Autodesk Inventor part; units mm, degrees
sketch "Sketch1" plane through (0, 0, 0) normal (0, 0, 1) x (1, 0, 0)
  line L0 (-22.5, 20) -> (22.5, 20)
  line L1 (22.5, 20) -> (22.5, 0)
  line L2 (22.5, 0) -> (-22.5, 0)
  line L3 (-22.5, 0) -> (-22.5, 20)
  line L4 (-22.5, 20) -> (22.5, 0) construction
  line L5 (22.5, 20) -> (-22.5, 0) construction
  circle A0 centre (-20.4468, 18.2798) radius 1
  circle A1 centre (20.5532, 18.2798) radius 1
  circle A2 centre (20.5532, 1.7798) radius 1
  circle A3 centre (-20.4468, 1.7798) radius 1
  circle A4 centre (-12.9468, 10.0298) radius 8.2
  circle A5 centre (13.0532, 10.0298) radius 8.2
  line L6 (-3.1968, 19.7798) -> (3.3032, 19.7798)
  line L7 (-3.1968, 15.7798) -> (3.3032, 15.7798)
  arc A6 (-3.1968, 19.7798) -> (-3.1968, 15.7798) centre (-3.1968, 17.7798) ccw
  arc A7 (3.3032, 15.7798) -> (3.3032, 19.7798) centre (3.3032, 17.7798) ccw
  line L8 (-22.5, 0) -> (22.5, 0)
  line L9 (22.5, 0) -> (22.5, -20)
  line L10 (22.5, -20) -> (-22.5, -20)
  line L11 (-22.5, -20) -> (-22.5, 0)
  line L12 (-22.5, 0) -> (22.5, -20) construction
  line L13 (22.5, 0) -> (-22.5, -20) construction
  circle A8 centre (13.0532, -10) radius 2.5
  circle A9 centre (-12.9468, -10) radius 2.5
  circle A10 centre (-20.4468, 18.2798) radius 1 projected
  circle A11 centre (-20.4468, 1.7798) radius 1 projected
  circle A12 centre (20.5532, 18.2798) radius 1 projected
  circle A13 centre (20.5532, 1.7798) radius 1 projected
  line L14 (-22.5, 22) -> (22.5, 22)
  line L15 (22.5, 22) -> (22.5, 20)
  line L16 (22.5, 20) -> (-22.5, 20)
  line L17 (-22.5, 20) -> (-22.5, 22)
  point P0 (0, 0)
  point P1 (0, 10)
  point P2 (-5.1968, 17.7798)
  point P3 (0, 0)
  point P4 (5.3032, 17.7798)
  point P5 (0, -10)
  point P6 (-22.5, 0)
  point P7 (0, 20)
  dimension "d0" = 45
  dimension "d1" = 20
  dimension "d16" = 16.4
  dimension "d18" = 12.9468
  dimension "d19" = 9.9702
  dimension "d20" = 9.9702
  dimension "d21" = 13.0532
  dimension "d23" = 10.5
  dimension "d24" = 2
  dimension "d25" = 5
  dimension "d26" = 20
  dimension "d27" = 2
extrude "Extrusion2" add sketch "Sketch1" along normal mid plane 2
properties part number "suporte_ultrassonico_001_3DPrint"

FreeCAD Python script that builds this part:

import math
import FreeCAD as App
import Part
import Sketcher
from FreeCAD import Vector
Q = App.Units.Quantity

doc = App.newDocument("Part")
body = doc.addObject("PartDesign::Body", "Body")

# Sketch on XY plane
sketch1 = body.newObject("Sketcher::SketchObject", "Sketch")
sketch1.AttachmentSupport = (doc.getObject("XY_Plane"), [""])
sketch1.MapMode = "FlatFace"
sketch1.addGeometry(Part.LineSegment(Vector(-22.5, 22, 0), Vector(-22.5, -20, 0)), False)
sketch1.addGeometry(Part.LineSegment(Vector(-22.5, -20, 0), Vector(22.5, -20, 0)), False)
sketch1.addGeometry(Part.LineSegment(Vector(22.5, -20, 0), Vector(22.5, 22, 0)), False)
sketch1.addGeometry(Part.LineSegment(Vector(22.5, 22, 0), Vector(-22.5, 22, 0)), False)
sketch1.addGeometry(Part.Circle(Vector(20.6, 18.3, 0), Vector(0, 0, 1), 1), False)
sketch1.addGeometry(Part.Circle(Vector(-20.4, 1.8, 0), Vector(0, 0, 1), 1), False)
sketch1.addGeometry(Part.Circle(Vector(-12.9, 10, 0), Vector(0, 0, 1), 8.2), False)
sketch1.addGeometry(Part.Circle(Vector(-20.4, 18.3, 0), Vector(0, 0, 1), 1), False)
sketch1.addGeometry(Part.Circle(Vector(20.6, 1.8, 0), Vector(0, 0, 1), 1), False)
sketch1.addGeometry(Part.Circle(Vector(13.1, 10, 0), Vector(0, 0, 1), 8.2), False)
sketch1.addGeometry(Part.ArcOfCircle(Part.Circle(Vector(-3.2, 17.8, 0), Vector(0, 0, 1), 2), math.radians(90), math.radians(270)), False)
sketch1.addGeometry(Part.LineSegment(Vector(-3.2, 19.8, 0), Vector(3.3, 19.8, 0)), False)
sketch1.addGeometry(Part.ArcOfCircle(Part.Circle(Vector(3.3, 17.8, 0), Vector(0, 0, 1), 2), math.radians(-90), math.radians(90)), False)
sketch1.addGeometry(Part.LineSegment(Vector(3.3, 15.8, 0), Vector(-3.2, 15.8, 0)), False)
sketch1.addGeometry(Part.Circle(Vector(13.1, -10, 0), Vector(0, 0, 1), 2.5), False)
sketch1.addGeometry(Part.Circle(Vector(-12.9, -10, 0), Vector(0, 0, 1), 2.5), False)
sketch1.addConstraint(Sketcher.Constraint("Coincident", 0, 2, 1, 1))
sketch1.addConstraint(Sketcher.Constraint("Coincident", 1, 2, 2, 1))
sketch1.addConstraint(Sketcher.Constraint("Coincident", 2, 2, 3, 1))
sketch1.addConstraint(Sketcher.Constraint("Coincident", 3, 2, 0, 1))
sketch1.addConstraint(Sketcher.Constraint("Tangent", 10, 1, 11, 1))
sketch1.addConstraint(Sketcher.Constraint("Tangent", 11, 2, 12, 2))
sketch1.addConstraint(Sketcher.Constraint("Tangent", 12, 1, 13, 1))
sketch1.addConstraint(Sketcher.Constraint("Tangent", 13, 2, 10, 2))
sketch1.addConstraint(Sketcher.Constraint("Vertical", 0))
sketch1.addConstraint(Sketcher.Constraint("Horizontal", 1))
sketch1.addConstraint(Sketcher.Constraint("Vertical", 2))
sketch1.addConstraint(Sketcher.Constraint("Horizontal", 3))
sketch1.addConstraint(Sketcher.Constraint("Horizontal", 11))
sketch1.addConstraint(Sketcher.Constraint("Horizontal", 13))
sketch1.addConstraint(Sketcher.Constraint("Equal", 4, 5))
sketch1.addConstraint(Sketcher.Constraint("Equal", 5, 7))
sketch1.addConstraint(Sketcher.Constraint("Equal", 7, 8))
sketch1.addConstraint(Sketcher.Constraint("Equal", 6, 9))
sketch1.addConstraint(Sketcher.Constraint("Equal", 14, 15))
sketch1.addConstraint(Sketcher.Constraint("Horizontal", 4, 3, 7, 3))
sketch1.addConstraint(Sketcher.Constraint("Horizontal", 5, 3, 8, 3))
sketch1.addConstraint(Sketcher.Constraint("Horizontal", 6, 3, 9, 3))
sketch1.addConstraint(Sketcher.Constraint("Horizontal", 14, 3, 15, 3))
sketch1.addConstraint(Sketcher.Constraint("Vertical", 5, 3, 7, 3))
sketch1.addConstraint(Sketcher.Constraint("Vertical", 4, 3, 8, 3))
sketch1.addConstraint(Sketcher.Constraint("Vertical", 9, 3, 14, 3))
sketch1.addConstraint(Sketcher.Constraint("Vertical", 6, 3, 15, 3))
sketch1.addConstraint(Sketcher.Constraint("Diameter", 4, Q("2 mm")))
sketch1.addConstraint(Sketcher.Constraint("Diameter", 14, Q("5 mm")))
sketch1.addConstraint(Sketcher.Constraint("Radius", 10, Q("2 mm")))
sketch1.addConstraint(Sketcher.Constraint("Diameter", 6, Q("16.4 mm")))
sketch1.addConstraint(Sketcher.Constraint("DistanceX", 1, 1, 1, 2, Q("45 mm")))
sketch1.addConstraint(Sketcher.Constraint("DistanceY", 0, 2, -1, 1, Q("20 mm")))
sketch1.addConstraint(Sketcher.Constraint("DistanceY", 0, 2, 0, 1, Q("42 mm")))
sketch1.addConstraint(Sketcher.Constraint("DistanceX", 11, 1, 11, 2, Q("6.5 mm")))
sketch1.addConstraint(Sketcher.Constraint("DistanceY", 14, 3, -1, 1, Q("10 mm")))
sketch1.addConstraint(Sketcher.Constraint("DistanceX", 5, 3, 4, 3, Q("41 mm")))
sketch1.addConstraint(Sketcher.Constraint("DistanceX", 6, 3, 9, 3, Q("26 mm")))
sketch1.addConstraint(Sketcher.Constraint("DistanceY", 5, 3, 10, 3, Q("16 mm")))
sketch1.addConstraint(Sketcher.Constraint("DistanceX", 6, 3, -1, 1, Q("12.9468 mm")))
sketch1.addConstraint(Sketcher.Constraint("DistanceX", 0, 2, -1, 1, Q("22.5 mm")))
sketch1.addConstraint(Sketcher.Constraint("DistanceY", 5, 3, 4, 3, Q("16.5 mm")))
sketch1.addConstraint(Sketcher.Constraint("DistanceX", 5, 3, 6, 3, Q("7.5 mm")))
sketch1.addConstraint(Sketcher.Constraint("DistanceY", 5, 3, 6, 3, Q("8.25 mm")))
sketch1.addConstraint(Sketcher.Constraint("DistanceX", 6, 3, 10, 3, Q("9.75 mm")))
sketch1.addConstraint(Sketcher.Constraint("DistanceY", -1, 1, 4, 3, Q("18.2798 mm")))
pad1 = body.newObject("PartDesign::Pad", "Pad")
pad1.Profile = sketch1
pad1.Length = 2
pad1.Midplane = True

doc.recompute()
